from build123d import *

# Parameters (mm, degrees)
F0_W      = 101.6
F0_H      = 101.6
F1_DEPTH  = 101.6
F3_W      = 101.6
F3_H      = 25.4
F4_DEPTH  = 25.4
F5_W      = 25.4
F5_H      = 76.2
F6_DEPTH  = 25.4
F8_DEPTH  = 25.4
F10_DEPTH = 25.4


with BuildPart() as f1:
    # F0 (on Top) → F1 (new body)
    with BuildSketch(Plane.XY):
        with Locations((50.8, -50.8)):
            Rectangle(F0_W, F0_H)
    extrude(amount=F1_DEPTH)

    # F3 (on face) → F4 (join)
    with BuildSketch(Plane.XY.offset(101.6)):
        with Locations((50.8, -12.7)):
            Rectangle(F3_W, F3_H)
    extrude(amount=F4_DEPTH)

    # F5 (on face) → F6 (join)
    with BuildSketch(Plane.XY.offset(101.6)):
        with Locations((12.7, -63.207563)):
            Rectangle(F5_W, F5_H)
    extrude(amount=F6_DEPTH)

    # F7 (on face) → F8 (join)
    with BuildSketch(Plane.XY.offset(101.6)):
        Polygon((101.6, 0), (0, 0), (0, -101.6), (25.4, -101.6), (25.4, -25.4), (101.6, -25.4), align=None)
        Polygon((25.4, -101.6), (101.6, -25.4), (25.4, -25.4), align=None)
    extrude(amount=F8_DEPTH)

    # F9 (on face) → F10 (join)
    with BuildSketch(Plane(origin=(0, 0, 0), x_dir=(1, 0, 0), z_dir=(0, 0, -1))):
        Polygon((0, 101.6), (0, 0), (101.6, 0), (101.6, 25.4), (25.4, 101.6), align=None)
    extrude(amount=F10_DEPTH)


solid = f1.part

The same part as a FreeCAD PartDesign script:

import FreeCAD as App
import Part
import Sketcher

V = App.Vector
Q = App.Units.Quantity

doc = App.newDocument("Part")
body = doc.addObject("PartDesign::Body", "Body")

# Sketch on XY plane
sketch1 = body.newObject("Sketcher::SketchObject", "Sketch")
sketch1.AttachmentSupport = (doc.getObject("XY_Plane"), [""])
sketch1.MapMode = "FlatFace"
sketch1.addGeometry(Part.LineSegment(V(0, 0, 0), V(0, -101.6, 0)), False)
sketch1.addGeometry(Part.LineSegment(V(0, -101.6, 0), V(101.6, -101.6, 0)), False)
sketch1.addGeometry(Part.LineSegment(V(101.6, -101.6, 0), V(101.6, 0, 0)), False)
sketch1.addGeometry(Part.LineSegment(V(101.6, 0, 0), V(0, 0, 0)), False)
sketch1.addConstraint(Sketcher.Constraint("Coincident", 0, 2, 1, 1))
sketch1.addConstraint(Sketcher.Constraint("Coincident", 1, 2, 2, 1))
sketch1.addConstraint(Sketcher.Constraint("Coincident", 2, 2, 3, 1))
sketch1.addConstraint(Sketcher.Constraint("Coincident", 3, 2, 0, 1))
sketch1.addConstraint(Sketcher.Constraint("Vertical", 0))
sketch1.addConstraint(Sketcher.Constraint("Horizontal", 1))
sketch1.addConstraint(Sketcher.Constraint("Vertical", 2))
sketch1.addConstraint(Sketcher.Constraint("Horizontal", 3))
sketch1.addConstraint(Sketcher.Constraint("Coincident", 3, 2, -1, 1))
sketch1.addConstraint(Sketcher.Constraint("Equal", 3, 0))
sketch1.addConstraint(Sketcher.Constraint("DistanceX", 1, 1, 1, 2, Q("4 in")))
pad1 = body.newObject("PartDesign::Pad", "Pad")
pad1.Profile = sketch1
pad1.Length = Q("4 in")

# Sketch on XY plane
sketch2 = body.newObject("Sketcher::SketchObject", "Sketch001")
sketch2.AttachmentSupport = (doc.getObject("XY_Plane"), [""])
sketch2.MapMode = "FlatFace"
sketch2.AttachmentOffset = App.Placement(V(0, 0, 4 * 25.4), App.Rotation())
sketch2.addGeometry(Part.LineSegment(V(0, 0, 0), V(0, -25.4, 0)), False)
sketch2.addGeometry(Part.LineSegment(V(0, -25.4, 0), V(101.6, -25.4, 0)), False)
sketch2.addGeometry(Part.LineSegment(V(101.6, -25.4, 0), V(101.6, 0, 0)), False)
sketch2.addGeometry(Part.LineSegment(V(101.6, 0, 0), V(0, 0, 0)), False)
sketch2.addConstraint(Sketcher.Constraint("Coincident", 0, 2, 1, 1))
sketch2.addConstraint(Sketcher.Constraint("Coincident", 1, 2, 2, 1))
sketch2.addConstraint(Sketcher.Constraint("Coincident", 2, 2, 3, 1))
sketch2.addConstraint(Sketcher.Constraint("Coincident", 3, 2, 0, 1))
sketch2.addConstraint(Sketcher.Constraint("Vertical", 0))
sketch2.addConstraint(Sketcher.Constraint("Horizontal", 1))
sketch2.addConstraint(Sketcher.Constraint("Vertical", 2))
sketch2.addConstraint(Sketcher.Constraint("Horizontal", 3))
sketch2.addConstraint(Sketcher.Constraint("Coincident", 3, 2, -1, 1))
sketch2.addConstraint(Sketcher.Constraint("DistanceX", 1, 1, 1, 2, Q("4 in")))
sketch2.addConstraint(Sketcher.Constraint("DistanceY", 0, 2, 0, 1, Q("1 in")))
pad2 = body.newObject("PartDesign::Pad", "Pad001")
pad2.Profile = sketch2
pad2.Length = Q("1 in")

# Sketch on XY plane
sketch3 = body.newObject("Sketcher::SketchObject", "Sketch002")
sketch3.AttachmentSupport = (doc.getObject("XY_Plane"), [""])
sketch3.MapMode = "FlatFace"
sketch3.AttachmentOffset = App.Placement(V(0, 0, 4 * 25.4), App.Rotation())
sketch3.addGeometry(Part.LineSegment(V(0, -25.107563, 0), V(0, -101.307563, 0)), False)
sketch3.addGeometry(Part.LineSegment(V(0, -101.307563, 0), V(25.4, -101.307563, 0)), False)
sketch3.addGeometry(Part.LineSegment(V(25.4, -101.307563, 0), V(25.4, -25.107563, 0)), False)
sketch3.addGeometry(Part.LineSegment(V(25.4, -25.107563, 0), V(0, -25.107563, 0)), False)
sketch3.addConstraint(Sketcher.Constraint("Coincident", 0, 2, 1, 1))
sketch3.addConstraint(Sketcher.Constraint("Coincident", 1, 2, 2, 1))
sketch3.addConstraint(Sketcher.Constraint("Coincident", 2, 2, 3, 1))
sketch3.addConstraint(Sketcher.Constraint("Coincident", 3, 2, 0, 1))
sketch3.addConstraint(Sketcher.Constraint("Vertical", 0))
sketch3.addConstraint(Sketcher.Constraint("Horizontal", 1))
sketch3.addConstraint(Sketcher.Constraint("Vertical", 2))
sketch3.addConstraint(Sketcher.Constraint("Horizontal", 3))
sketch3.addConstraint(Sketcher.Constraint("PointOnObject", 0, 2, -2))
sketch3.addConstraint(Sketcher.Constraint("DistanceX", 1, 1, 1, 2, Q("1 in")))
sketch3.addConstraint(Sketcher.Constraint("DistanceY", 0, 2, 0, 1, Q("3 in")))
sketch3.addConstraint(Sketcher.Constraint("DistanceY", 0, 2, -1, 1, Q("101.307563 mm")))
pad3 = body.newObject("PartDesign::Pad", "Pad002")
pad3.Profile = sketch3
pad3.Length = Q("1 in")

# Sketch on XY plane
sketch4 = body.newObject("Sketcher::SketchObject", "Sketch003")
sketch4.AttachmentSupport = (doc.getObject("XY_Plane"), [""])
sketch4.MapMode = "FlatFace"
sketch4.AttachmentOffset = App.Placement(V(0, 0, 4 * 25.4), App.Rotation())
sketch4.addGeometry(Part.LineSegment(V(101.6, 0, 0), V(0, 0, 0)), False)
sketch4.addGeometry(Part.LineSegment(V(0, 0, 0), V(0, -101.6, 0)), False)
sketch4.addGeometry(Part.LineSegment(V(0, -101.6, 0), V(25.4, -101.6, 0)), False)
sketch4.addGeometry(Part.LineSegment(V(25.4, -101.6, 0), V(101.6, -25.4, 0)), False)
sketch4.addGeometry(Part.LineSegment(V(101.6, -25.4, 0), V(101.6, 0, 0)), False)
sketch4.addConstraint(Sketcher.Constraint("Coincident", 0, 2, 1, 1))
sketch4.addConstraint(Sketcher.Constraint("Coincident", 1, 2, 2, 1))
sketch4.addConstraint(Sketcher.Constraint("Coincident", 2, 2, 3, 1))
sketch4.addConstraint(Sketcher.Constraint("Coincident", 3, 2, 4, 1))
sketch4.addConstraint(Sketcher.Constraint("Coincident", 4, 2, 0, 1))
sketch4.addConstraint(Sketcher.Constraint("Horizontal", 0))
sketch4.addConstraint(Sketcher.Constraint("Vertical", 1))
sketch4.addConstraint(Sketcher.Constraint("Horizontal", 2))
sketch4.addConstraint(Sketcher.Constraint("Vertical", 4))
sketch4.addConstraint(Sketcher.Constraint("Coincident", 0, 2, -1, 1))
sketch4.addConstraint(Sketcher.Constraint("Equal", 0, 1))
sketch4.addConstraint(Sketcher.Constraint("Equal", 2, 4))
sketch4.addConstraint(Sketcher.Constraint("DistanceX", 0, 2, 0, 1, Q("4 in")))
sketch4.addConstraint(Sketcher.Constraint("DistanceX", 2, 1, 2, 2, Q("1 in")))
pad4 = body.newObject("PartDesign::Pad", "Pad003")
pad4.Profile = sketch4
pad4.Length = Q("1 in")

# Sketch on XY plane
sketch5 = body.newObject("Sketcher::SketchObject", "Sketch004")
sketch5.AttachmentSupport = (doc.getObject("XY_Plane"), [""])
sketch5.MapMode = "FlatFace"
sketch5.addGeometry(Part.LineSegment(V(0, -101.6, 0), V(0, 0, 0)), False)
sketch5.addGeometry(Part.LineSegment(V(0, 0, 0), V(101.6, 0, 0)), False)
sketch5.addGeometry(Part.LineSegment(V(101.6, 0, 0), V(101.6, -25.4, 0)), False)
sketch5.addGeometry(Part.LineSegment(V(101.6, -25.4, 0), V(25.4, -101.6, 0)), False)
sketch5.addGeometry(Part.LineSegment(V(25.4, -101.6, 0), V(0, -101.6, 0)), False)
sketch5.addConstraint(Sketcher.Constraint("Coincident", 0, 2, 1, 1))
sketch5.addConstraint(Sketcher.Constraint("Coincident", 1, 2, 2, 1))
sketch5.addConstraint(Sketcher.Constraint("Coincident", 2, 2, 3, 1))
sketch5.addConstraint(Sketcher.Constraint("Coincident", 3, 2, 4, 1))
sketch5.addConstraint(Sketcher.Constraint("Coincident", 4, 2, 0, 1))
sketch5.addConstraint(Sketcher.Constraint("Vertical", 0))
sketch5.addConstraint(Sketcher.Constraint("Horizontal", 1))
sketch5.addConstraint(Sketcher.Constraint("Vertical", 2))
sketch5.addConstraint(Sketcher.Constraint("Horizontal", 4))
sketch5.addConstraint(Sketcher.Constraint("Coincident", 0, 2, -1, 1))
sketch5.addConstraint(Sketcher.Constraint("Equal", 1, 0))
sketch5.addConstraint(Sketcher.Constraint("Equal", 4, 2))
sketch5.addConstraint(Sketcher.Constraint("DistanceX", 1, 1, 1, 2, Q("4 in")))
sketch5.addConstraint(Sketcher.Constraint("DistanceX", 4, 2, 4, 1, Q("1 in")))
pad5 = body.newObject("PartDesign::Pad", "Pad004")
pad5.Profile = sketch5
pad5.Length = Q("1 in")
pad5.Reversed = True

doc.recompute()
